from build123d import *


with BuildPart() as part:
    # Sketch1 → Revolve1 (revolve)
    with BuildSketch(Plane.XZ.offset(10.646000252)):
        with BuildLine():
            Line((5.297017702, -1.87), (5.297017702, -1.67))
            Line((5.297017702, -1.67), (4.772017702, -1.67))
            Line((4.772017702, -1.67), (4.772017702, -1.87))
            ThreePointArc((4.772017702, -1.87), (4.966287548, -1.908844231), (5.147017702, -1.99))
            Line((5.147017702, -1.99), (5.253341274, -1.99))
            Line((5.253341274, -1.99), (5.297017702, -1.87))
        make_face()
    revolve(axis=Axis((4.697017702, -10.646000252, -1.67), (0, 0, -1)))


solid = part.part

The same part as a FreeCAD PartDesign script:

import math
import FreeCAD as App
import Part
import Sketcher
from FreeCAD import Vector
Q = App.Units.Quantity

doc = App.newDocument("Part")
body = doc.addObject("PartDesign::Body", "Body")

# Sketch on XZ plane
sketch1 = doc.addObject("Sketcher::SketchObject", "Sketch")
body.addObject(sketch1)
sketch1.AttachmentSupport = (doc.XZ_Plane, [""])
sketch1.MapMode = "FlatFace"
sketch1.AttachmentOffset = App.Placement(Vector(0, 0, 10.646), App.Rotation())
sketch1.addGeometry([
    Part.LineSegment(Vector(5.3, -1.87, 0), Vector(5.3, -1.67, 0)),  # 0
    Part.LineSegment(Vector(5.3, -1.67, 0), Vector(4.77, -1.67, 0)),  # 1
    Part.LineSegment(Vector(4.77, -1.67, 0), Vector(4.77, -1.87, 0)),  # 2
    Part.ArcOfCircle(Part.Circle(Vector(4.7, -2.75, 0), Vector(0, 0, 1), 0.88), math.radians(59), math.radians(85)),  # 3
    Part.LineSegment(Vector(5.15, -1.99, 0), Vector(5.25, -1.99, 0)),  # 4
    Part.LineSegment(Vector(5.25, -1.99, 0), Vector(5.3, -1.87, 0)),  # 5
], False)
sketch1.addGeometry(Part.LineSegment(Vector(4.7, -1.67, 0), Vector(4.7, -2.75, 0)), True)  # axis
sketch1.addConstraint([
    Sketcher.Constraint("Coincident", 0, 2, 1, 1),
    Sketcher.Constraint("Coincident", 1, 2, 2, 1),
    Sketcher.Constraint("Coincident", 2, 2, 3, 2),
    Sketcher.Constraint("Coincident", 3, 1, 4, 1),
    Sketcher.Constraint("Coincident", 4, 2, 5, 1),
    Sketcher.Constraint("Coincident", 5, 2, 0, 1),
    Sketcher.Constraint("Vertical", 0),
    Sketcher.Constraint("Horizontal", 1),
    Sketcher.Constraint("Vertical", 2),
    Sketcher.Constraint("Horizontal", 4),
    Sketcher.Constraint("Vertical", 6),
    Sketcher.Constraint("Coincident", 6, 2, 3, 3),
    Sketcher.Constraint("Horizontal", 2, 2, 5, 2),
    Sketcher.Constraint("Horizontal", 1, 2, 6, 1),
    Sketcher.Constraint("Angle", 5, Q("70 deg")),
    Sketcher.Constraint("DistanceY", 0, 1, 0, 2, Q("0.2 mm")),
    Sketcher.Constraint("Radius", 3, Q("0.883502 mm")),
    Sketcher.Constraint("DistanceX", 3, 3, 0, 2, Q("0.6 mm")),
    Sketcher.Constraint("DistanceX", 1, 2, 1, 1, Q("0.525 mm")),
    Sketcher.Constraint("DistanceY", 0, 2, -1, 1, Q("1.67 mm")),
    Sketcher.Constraint("DistanceY", 3, 1, -1, 1, Q("1.99 mm")),
    Sketcher.Constraint("DistanceX", -1, 1, 4, 2, Q("5.253341 mm")),
])
revolution = doc.addObject("PartDesign::Revolution", "Revolution")
body.addObject(revolution)
revolution.Profile = sketch1
revolution.ReferenceAxis = (sketch1, ["Axis0"])
revolution.Angle = 360

doc.recompute()
